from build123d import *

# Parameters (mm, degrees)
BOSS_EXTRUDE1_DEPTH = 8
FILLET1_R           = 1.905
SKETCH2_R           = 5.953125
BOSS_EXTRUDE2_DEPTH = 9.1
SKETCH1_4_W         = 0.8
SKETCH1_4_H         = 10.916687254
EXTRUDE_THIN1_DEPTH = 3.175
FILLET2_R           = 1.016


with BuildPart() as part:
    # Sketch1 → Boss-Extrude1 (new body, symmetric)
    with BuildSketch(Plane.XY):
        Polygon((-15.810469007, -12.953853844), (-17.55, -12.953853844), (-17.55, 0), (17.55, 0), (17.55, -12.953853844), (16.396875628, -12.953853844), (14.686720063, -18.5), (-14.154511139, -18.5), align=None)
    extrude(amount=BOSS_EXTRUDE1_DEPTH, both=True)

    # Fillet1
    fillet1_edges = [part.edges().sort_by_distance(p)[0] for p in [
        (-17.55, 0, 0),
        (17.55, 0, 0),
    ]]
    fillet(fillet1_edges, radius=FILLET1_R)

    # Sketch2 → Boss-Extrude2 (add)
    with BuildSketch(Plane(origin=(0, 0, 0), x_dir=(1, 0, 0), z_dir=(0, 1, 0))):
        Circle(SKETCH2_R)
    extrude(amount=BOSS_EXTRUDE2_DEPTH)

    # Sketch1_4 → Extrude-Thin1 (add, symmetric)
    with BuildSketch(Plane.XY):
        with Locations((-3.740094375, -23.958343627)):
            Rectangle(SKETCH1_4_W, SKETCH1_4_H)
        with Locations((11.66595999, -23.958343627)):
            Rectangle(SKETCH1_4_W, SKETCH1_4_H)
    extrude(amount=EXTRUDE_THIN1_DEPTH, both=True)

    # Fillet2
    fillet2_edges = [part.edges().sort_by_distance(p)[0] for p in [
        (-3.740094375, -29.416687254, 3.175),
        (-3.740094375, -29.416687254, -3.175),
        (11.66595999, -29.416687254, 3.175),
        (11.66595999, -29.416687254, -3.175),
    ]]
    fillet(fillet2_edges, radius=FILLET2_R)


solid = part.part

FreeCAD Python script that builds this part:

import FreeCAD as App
import Part
import Sketcher
Q = App.Units.Quantity


def edges_at(feature, points):
    """Names of the edges that pass closest to the given points."""
    edges = feature.Shape.Edges
    near = lambda p: min(range(len(edges)), key=lambda i: edges[i].distToShape(Part.Vertex(*p))[0])
    return sorted({f"Edge{near(p) + 1}" for p in points})

doc = App.newDocument("Part")
body = doc.addObject("PartDesign::Body", "Body")

sketch1 = body.newObject("Sketcher::SketchObject", "Sketch")
sketch1.AttachmentSupport = (doc.getObject("XY_Plane"), [""])
sketch1.MapMode = "FlatFace"
sketch1.addGeometry(Part.LineSegment(App.Vector(-17.55, -12.953854, 0), App.Vector(-15.810469, -12.953854, 0)), False)
sketch1.addGeometry(Part.LineSegment(App.Vector(-15.810469, -12.953854, 0), App.Vector(-14.154511, -18.5, 0)), False)
sketch1.addGeometry(Part.LineSegment(App.Vector(-14.154511, -18.5, 0), App.Vector(14.68672, -18.5, 0)), False)
sketch1.addGeometry(Part.LineSegment(App.Vector(14.68672, -18.5, 0), App.Vector(16.396876, -12.953854, 0)), False)
sketch1.addGeometry(Part.LineSegment(App.Vector(16.396876, -12.953854, 0), App.Vector(17.55, -12.953854, 0)), False)
sketch1.addGeometry(Part.LineSegment(App.Vector(17.55, -12.953854, 0), App.Vector(17.55, 0, 0)), False)
sketch1.addGeometry(Part.LineSegment(App.Vector(17.55, 0, 0), App.Vector(-17.55, 0, 0)), False)
sketch1.addGeometry(Part.LineSegment(App.Vector(-17.55, 0, 0), App.Vector(-17.55, -12.953854, 0)), False)
sketch1.addConstraint(Sketcher.Constraint("Coincident", 0, 2, 1, 1))
sketch1.addConstraint(Sketcher.Constraint("Coincident", 1, 2, 2, 1))
sketch1.addConstraint(Sketcher.Constraint("Coincident", 2, 2, 3, 1))
sketch1.addConstraint(Sketcher.Constraint("Coincident", 3, 2, 4, 1))
sketch1.addConstraint(Sketcher.Constraint("Coincident", 4, 2, 5, 1))
sketch1.addConstraint(Sketcher.Constraint("Coincident", 5, 2, 6, 1))
sketch1.addConstraint(Sketcher.Constraint("Coincident", 6, 2, 7, 1))
sketch1.addConstraint(Sketcher.Constraint("Coincident", 7, 2, 0, 1))
sketch1.addConstraint(Sketcher.Constraint("Horizontal", 0))
sketch1.addConstraint(Sketcher.Constraint("Horizontal", 2))
sketch1.addConstraint(Sketcher.Constraint("Horizontal", 4))
sketch1.addConstraint(Sketcher.Constraint("Vertical", 5))
sketch1.addConstraint(Sketcher.Constraint("Horizontal", 6))
sketch1.addConstraint(Sketcher.Constraint("Vertical", 7))
sketch1.addConstraint(Sketcher.Constraint("Symmetric", 5, 2, 6, 2, -1, 1))
sketch1.addConstraint(Sketcher.Constraint("Horizontal", 0, 2, 3, 2))
sketch1.addConstraint(Sketcher.Constraint("DistanceX", 6, 2, 6, 1, Q("35.1 mm")))
sketch1.addConstraint(Sketcher.Constraint("DistanceY", 1, 2, -1, 1, Q("18.5 mm")))
sketch1.addConstraint(Sketcher.Constraint("DistanceX", 0, 1, 0, 2, Q("1.739531 mm")))
sketch1.addConstraint(Sketcher.Constraint("DistanceX", 2, 1, 2, 2, Q("28.841231 mm")))
sketch1.addConstraint(Sketcher.Constraint("DistanceX", 4, 1, 4, 2, Q("1.153124 mm")))
sketch1.addConstraint(Sketcher.Constraint("DistanceY", 5, 1, 5, 2, Q("12.953854 mm")))
sketch1.addConstraint(Sketcher.Constraint("DistanceX", 1, 2, -1, 1, Q("14.154511 mm")))
pad1 = body.newObject("PartDesign::Pad", "Pad")
pad1.Profile = sketch1
pad1.Length = 16
pad1.Midplane = True
doc.recompute()

fillet = body.newObject("PartDesign::Fillet", "Fillet")
fillet.Base = (pad1, edges_at(pad1, [(-17.55, 0, 0), (17.55, 0, 0)]))
fillet.Radius = 1.905

sketch2 = body.newObject("Sketcher::SketchObject", "Sketch001")
sketch2.AttachmentSupport = (doc.getObject("XZ_Plane"), [""])
sketch2.MapMode = "FlatFace"
sketch2.addGeometry(Part.Circle(App.Vector(0, 0, 0), App.Vector(0, 0, 1), 5.953125), False)
sketch2.addConstraint(Sketcher.Constraint("Coincident", 0, 3, -1, 1))
sketch2.addConstraint(Sketcher.Constraint("Diameter", 0, Q("11.90625 mm")))
pad2 = body.newObject("PartDesign::Pad", "Pad001")
pad2.Profile = sketch2
pad2.Length = 9.1
pad2.Reversed = True

sketch3 = body.newObject("Sketcher::SketchObject", "Sketch002")
sketch3.AttachmentSupport = (doc.getObject("XY_Plane"), [""])
sketch3.MapMode = "FlatFace"
sketch3.addGeometry(Part.LineSegment(App.Vector(-4.140094, -18.5, 0), App.Vector(-4.140094, -29.416687, 0)), False)
sketch3.addGeometry(Part.LineSegment(App.Vector(-4.140094, -29.416687, 0), App.Vector(-3.340094, -29.416687, 0)), False)
sketch3.addGeometry(Part.LineSegment(App.Vector(-3.340094, -29.416687, 0), App.Vector(-3.340094, -18.5, 0)), False)
sketch3.addGeometry(Part.LineSegment(App.Vector(-3.340094, -18.5, 0), App.Vector(-4.140094, -18.5, 0)), False)
sketch3.addGeometry(Part.LineSegment(App.Vector(11.26596, -18.5, 0), App.Vector(11.26596, -29.416687, 0)), False)
sketch3.addGeometry(Part.LineSegment(App.Vector(11.26596, -29.416687, 0), App.Vector(12.06596, -29.416687, 0)), False)
sketch3.addGeometry(Part.LineSegment(App.Vector(12.06596, -29.416687, 0), App.Vector(12.06596, -18.5, 0)), False)
sketch3.addGeometry(Part.LineSegment(App.Vector(12.06596, -18.5, 0), App.Vector(11.26596, -18.5, 0)), False)
sketch3.addConstraint(Sketcher.Constraint("Coincident", 0, 2, 1, 1))
sketch3.addConstraint(Sketcher.Constraint("Coincident", 1, 2, 2, 1))
sketch3.addConstraint(Sketcher.Constraint("Coincident", 2, 2, 3, 1))
sketch3.addConstraint(Sketcher.Constraint("Coincident", 3, 2, 0, 1))
sketch3.addConstraint(Sketcher.Constraint("Coincident", 4, 2, 5, 1))
sketch3.addConstraint(Sketcher.Constraint("Coincident", 5, 2, 6, 1))
sketch3.addConstraint(Sketcher.Constraint("Coincident", 6, 2, 7, 1))
sketch3.addConstraint(Sketcher.Constraint("Coincident", 7, 2, 4, 1))
sketch3.addConstraint(Sketcher.Constraint("Vertical", 0))
sketch3.addConstraint(Sketcher.Constraint("Horizontal", 1))
sketch3.addConstraint(Sketcher.Constraint("Vertical", 2))
sketch3.addConstraint(Sketcher.Constraint("Horizontal", 3))
sketch3.addConstraint(Sketcher.Constraint("Vertical", 4))
sketch3.addConstraint(Sketcher.Constraint("Horizontal", 5))
sketch3.addConstraint(Sketcher.Constraint("Vertical", 6))
sketch3.addConstraint(Sketcher.Constraint("Horizontal", 7))
sketch3.addConstraint(Sketcher.Constraint("Horizontal", 1, 2, 4, 2))
sketch3.addConstraint(Sketcher.Constraint("Horizontal", 3, 2, 6, 2))
sketch3.addConstraint(Sketcher.Constraint("Equal", 3, 5))
sketch3.addConstraint(Sketcher.Constraint("DistanceX", 1, 1, 1, 2, Q("0.8 mm")))
sketch3.addConstraint(Sketcher.Constraint("DistanceY", 2, 2, -1, 1, Q("18.5 mm")))
sketch3.addConstraint(Sketcher.Constraint("DistanceY", 0, 2, 0, 1, Q("10.916687 mm")))
sketch3.addConstraint(Sketcher.Constraint("DistanceX", -1, 1, 4, 2, Q("11.26596 mm")))
sketch3.addConstraint(Sketcher.Constraint("DistanceX", 0, 2, -1, 1, Q("4.140094 mm")))
pad3 = body.newObject("PartDesign::Pad", "Pad002")
pad3.Profile = sketch3
pad3.Length = 6.35
pad3.Midplane = True
doc.recompute()

fillet2 = body.newObject("PartDesign::Fillet", "Fillet001")
fillet2.Base = (pad3, edges_at(pad3, [
    (-3.74, -29.417, 3.175),
    (-3.74, -29.417, -3.175),
    (11.666, -29.417, 3.175),
    (11.666, -29.417, -3.175),
]))
fillet2.Radius = 1.016

doc.recompute()
